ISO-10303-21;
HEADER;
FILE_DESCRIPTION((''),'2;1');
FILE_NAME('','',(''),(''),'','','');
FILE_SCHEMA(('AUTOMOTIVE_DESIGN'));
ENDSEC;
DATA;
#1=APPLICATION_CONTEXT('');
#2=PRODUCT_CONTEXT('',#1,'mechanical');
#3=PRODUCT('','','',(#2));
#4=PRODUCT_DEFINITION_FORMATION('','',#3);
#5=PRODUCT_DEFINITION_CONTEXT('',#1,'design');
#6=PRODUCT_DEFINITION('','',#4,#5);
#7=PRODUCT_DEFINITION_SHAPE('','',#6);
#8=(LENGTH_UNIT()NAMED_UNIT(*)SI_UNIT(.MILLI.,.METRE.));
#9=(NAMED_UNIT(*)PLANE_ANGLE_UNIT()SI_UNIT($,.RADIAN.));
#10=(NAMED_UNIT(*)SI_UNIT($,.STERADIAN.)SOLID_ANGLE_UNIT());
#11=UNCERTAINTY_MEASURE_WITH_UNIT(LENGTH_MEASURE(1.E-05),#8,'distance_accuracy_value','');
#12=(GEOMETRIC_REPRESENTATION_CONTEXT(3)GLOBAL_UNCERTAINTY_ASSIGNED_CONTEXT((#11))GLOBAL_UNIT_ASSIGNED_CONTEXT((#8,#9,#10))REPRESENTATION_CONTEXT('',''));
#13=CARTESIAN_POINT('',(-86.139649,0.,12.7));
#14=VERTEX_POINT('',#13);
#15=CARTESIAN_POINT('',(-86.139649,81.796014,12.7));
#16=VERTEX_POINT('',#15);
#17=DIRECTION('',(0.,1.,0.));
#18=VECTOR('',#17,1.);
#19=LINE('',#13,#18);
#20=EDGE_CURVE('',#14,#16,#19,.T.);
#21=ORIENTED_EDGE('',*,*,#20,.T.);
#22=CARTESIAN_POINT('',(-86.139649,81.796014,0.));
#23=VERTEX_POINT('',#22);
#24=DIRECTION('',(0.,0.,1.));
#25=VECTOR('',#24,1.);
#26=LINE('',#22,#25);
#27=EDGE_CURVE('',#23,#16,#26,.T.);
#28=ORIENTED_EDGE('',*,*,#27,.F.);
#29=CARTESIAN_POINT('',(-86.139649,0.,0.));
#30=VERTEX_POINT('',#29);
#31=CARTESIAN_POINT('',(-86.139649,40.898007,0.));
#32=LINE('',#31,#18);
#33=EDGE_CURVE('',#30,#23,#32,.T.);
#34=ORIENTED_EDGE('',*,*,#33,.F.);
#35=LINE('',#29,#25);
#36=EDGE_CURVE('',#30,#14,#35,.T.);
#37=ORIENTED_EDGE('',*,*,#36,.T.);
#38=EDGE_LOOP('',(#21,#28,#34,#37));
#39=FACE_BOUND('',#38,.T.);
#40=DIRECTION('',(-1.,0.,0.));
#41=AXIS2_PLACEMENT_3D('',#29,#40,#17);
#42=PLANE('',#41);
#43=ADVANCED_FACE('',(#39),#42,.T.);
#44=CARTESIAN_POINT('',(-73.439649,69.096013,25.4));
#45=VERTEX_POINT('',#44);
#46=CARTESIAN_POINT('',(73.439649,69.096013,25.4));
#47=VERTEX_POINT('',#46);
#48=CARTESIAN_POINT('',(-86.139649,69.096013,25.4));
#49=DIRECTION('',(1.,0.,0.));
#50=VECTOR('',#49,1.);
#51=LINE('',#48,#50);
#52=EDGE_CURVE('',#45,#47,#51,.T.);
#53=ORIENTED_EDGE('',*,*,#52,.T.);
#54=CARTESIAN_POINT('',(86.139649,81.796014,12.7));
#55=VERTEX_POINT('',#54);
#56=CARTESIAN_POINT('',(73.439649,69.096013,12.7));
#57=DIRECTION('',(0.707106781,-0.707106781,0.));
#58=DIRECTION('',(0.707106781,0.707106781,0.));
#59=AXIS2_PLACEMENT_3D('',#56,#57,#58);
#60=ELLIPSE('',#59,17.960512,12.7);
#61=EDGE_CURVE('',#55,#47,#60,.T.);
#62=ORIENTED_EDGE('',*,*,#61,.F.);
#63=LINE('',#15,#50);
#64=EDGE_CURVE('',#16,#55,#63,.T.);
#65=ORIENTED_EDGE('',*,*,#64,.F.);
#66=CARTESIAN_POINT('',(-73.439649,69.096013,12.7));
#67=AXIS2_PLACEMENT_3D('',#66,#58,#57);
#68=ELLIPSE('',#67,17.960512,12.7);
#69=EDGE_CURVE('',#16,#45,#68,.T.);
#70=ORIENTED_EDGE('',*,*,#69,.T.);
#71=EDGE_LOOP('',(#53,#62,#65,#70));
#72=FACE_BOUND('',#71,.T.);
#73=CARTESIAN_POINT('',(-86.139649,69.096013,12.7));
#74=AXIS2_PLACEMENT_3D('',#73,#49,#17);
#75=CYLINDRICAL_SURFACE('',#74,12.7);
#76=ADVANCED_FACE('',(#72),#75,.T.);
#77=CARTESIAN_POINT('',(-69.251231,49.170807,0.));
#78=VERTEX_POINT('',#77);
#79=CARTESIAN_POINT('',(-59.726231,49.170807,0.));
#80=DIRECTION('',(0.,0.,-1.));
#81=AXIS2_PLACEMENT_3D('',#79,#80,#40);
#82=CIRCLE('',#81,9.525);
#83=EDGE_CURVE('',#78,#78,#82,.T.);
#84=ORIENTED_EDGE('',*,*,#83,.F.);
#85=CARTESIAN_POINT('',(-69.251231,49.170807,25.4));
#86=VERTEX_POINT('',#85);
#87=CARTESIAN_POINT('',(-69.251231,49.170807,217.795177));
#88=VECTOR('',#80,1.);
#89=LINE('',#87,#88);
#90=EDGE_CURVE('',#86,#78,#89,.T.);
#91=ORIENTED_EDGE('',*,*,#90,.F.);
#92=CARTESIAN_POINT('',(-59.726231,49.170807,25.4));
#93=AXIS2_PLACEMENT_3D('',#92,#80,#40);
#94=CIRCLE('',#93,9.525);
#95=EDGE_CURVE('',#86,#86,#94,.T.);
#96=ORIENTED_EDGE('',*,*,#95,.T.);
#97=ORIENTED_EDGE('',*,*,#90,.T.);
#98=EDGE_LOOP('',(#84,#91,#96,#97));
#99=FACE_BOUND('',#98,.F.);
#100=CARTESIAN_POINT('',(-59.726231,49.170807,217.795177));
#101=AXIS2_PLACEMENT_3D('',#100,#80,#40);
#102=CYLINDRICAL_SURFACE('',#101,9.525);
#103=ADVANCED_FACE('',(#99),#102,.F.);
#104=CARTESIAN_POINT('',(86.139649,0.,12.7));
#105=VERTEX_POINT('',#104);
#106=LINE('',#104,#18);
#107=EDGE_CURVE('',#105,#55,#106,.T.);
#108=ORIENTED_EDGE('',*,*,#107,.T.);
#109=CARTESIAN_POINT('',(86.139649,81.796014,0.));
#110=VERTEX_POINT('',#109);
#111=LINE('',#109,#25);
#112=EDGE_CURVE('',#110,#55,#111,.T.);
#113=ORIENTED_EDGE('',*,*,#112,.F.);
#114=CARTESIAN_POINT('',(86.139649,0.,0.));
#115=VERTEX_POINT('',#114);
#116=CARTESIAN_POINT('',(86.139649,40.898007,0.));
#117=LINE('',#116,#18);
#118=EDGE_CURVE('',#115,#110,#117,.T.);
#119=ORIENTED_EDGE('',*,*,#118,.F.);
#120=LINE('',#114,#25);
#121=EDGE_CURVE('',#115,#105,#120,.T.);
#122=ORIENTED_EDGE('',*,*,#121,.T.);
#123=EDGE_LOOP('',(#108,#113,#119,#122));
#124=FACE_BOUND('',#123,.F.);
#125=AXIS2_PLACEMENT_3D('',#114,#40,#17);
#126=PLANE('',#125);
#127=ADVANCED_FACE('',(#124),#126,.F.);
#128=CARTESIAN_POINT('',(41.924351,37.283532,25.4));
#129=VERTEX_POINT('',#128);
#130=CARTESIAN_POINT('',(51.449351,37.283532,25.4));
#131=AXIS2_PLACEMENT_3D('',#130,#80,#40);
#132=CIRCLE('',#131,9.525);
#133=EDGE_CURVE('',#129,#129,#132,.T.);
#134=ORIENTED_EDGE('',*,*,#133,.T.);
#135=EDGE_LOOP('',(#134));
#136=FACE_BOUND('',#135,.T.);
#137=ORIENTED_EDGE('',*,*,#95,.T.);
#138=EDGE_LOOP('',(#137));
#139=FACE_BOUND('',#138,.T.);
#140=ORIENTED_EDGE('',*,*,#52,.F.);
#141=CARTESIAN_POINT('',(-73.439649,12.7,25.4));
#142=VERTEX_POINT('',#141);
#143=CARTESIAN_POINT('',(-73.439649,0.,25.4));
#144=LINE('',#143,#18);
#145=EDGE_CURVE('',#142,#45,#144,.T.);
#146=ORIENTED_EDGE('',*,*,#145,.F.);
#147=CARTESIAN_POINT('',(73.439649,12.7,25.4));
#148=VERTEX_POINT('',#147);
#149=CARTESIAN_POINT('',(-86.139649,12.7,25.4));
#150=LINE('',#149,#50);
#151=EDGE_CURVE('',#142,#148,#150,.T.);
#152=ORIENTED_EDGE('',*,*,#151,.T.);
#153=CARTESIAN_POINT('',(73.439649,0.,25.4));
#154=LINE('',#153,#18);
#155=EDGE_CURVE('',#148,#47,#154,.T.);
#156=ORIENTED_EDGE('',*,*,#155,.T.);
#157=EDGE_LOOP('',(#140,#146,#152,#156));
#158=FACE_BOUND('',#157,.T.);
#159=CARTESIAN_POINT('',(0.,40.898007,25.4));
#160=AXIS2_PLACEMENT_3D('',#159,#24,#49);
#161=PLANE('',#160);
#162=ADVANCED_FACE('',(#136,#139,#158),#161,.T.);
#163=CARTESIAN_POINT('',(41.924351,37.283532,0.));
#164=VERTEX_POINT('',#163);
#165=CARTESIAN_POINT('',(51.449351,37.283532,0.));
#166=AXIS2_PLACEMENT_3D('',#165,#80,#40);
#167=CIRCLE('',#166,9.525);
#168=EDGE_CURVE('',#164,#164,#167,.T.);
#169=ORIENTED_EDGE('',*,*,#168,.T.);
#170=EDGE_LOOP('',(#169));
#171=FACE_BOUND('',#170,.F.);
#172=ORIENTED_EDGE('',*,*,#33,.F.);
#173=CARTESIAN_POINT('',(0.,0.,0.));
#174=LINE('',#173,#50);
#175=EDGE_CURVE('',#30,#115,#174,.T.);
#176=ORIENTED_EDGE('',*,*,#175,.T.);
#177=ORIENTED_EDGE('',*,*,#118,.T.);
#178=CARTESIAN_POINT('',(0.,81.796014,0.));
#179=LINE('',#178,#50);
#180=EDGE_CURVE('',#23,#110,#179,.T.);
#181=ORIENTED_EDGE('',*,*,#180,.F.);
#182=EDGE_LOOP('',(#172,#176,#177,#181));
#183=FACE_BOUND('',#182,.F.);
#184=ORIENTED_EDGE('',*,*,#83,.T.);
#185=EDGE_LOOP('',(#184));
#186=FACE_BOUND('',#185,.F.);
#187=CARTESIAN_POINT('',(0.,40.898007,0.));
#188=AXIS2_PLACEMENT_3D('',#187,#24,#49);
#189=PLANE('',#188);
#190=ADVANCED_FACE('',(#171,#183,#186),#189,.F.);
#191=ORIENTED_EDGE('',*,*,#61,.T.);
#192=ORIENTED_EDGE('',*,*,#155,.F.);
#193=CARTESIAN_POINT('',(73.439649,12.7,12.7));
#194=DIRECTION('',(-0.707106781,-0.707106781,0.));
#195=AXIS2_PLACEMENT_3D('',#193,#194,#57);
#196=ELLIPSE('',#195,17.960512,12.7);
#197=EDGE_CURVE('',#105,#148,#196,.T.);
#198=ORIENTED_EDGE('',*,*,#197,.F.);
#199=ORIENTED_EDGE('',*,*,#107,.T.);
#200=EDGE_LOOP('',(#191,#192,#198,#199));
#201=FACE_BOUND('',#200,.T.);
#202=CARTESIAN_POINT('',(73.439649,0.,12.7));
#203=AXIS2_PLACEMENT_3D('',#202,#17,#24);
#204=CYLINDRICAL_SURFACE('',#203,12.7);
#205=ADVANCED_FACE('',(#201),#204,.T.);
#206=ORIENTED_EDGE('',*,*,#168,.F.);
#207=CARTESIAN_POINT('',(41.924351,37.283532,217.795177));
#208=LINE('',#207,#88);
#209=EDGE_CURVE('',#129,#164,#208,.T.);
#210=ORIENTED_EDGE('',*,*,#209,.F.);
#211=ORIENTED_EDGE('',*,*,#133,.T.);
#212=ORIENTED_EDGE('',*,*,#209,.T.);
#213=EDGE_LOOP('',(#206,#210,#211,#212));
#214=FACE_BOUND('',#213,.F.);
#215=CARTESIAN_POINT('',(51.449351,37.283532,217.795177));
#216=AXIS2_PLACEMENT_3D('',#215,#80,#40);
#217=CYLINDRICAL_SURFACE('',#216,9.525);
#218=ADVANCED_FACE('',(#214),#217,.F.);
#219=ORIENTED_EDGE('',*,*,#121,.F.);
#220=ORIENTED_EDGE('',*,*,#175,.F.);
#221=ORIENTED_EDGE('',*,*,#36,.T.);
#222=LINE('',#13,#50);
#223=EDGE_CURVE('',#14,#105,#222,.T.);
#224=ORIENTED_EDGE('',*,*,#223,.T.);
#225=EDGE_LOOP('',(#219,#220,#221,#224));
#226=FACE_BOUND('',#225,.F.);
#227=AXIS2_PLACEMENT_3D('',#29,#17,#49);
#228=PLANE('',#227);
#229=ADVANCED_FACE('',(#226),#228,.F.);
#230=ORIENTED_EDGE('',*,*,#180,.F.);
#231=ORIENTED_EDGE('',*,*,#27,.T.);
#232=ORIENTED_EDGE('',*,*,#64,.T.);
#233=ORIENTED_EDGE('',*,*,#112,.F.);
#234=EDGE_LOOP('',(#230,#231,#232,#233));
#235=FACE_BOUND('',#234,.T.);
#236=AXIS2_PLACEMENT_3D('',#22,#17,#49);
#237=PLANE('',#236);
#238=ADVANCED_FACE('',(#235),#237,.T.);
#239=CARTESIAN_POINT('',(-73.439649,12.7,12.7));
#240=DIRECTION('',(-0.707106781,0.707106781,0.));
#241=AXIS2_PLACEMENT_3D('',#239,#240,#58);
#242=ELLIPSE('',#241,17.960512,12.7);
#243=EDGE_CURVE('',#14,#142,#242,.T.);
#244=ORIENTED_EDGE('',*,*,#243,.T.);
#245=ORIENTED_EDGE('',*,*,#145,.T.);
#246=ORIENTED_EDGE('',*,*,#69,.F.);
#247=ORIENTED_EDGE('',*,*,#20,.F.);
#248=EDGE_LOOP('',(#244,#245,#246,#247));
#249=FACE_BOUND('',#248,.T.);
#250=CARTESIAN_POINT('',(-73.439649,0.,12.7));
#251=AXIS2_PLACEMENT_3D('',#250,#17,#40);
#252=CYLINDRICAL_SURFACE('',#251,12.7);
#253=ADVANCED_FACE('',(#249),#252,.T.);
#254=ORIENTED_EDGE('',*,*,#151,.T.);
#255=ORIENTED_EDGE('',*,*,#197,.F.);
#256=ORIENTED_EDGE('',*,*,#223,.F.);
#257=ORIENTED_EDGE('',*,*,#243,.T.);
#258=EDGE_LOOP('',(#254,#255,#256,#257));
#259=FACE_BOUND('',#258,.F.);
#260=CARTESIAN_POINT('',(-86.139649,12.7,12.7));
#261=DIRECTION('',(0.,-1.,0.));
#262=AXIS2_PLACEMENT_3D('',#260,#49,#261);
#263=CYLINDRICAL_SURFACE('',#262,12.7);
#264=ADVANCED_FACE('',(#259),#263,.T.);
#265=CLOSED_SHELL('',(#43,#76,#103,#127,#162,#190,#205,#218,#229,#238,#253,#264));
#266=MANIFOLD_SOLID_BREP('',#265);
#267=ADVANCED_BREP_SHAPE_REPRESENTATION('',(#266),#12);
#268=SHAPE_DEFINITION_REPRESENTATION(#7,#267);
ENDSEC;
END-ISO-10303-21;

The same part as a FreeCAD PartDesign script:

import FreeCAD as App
import Part
import Sketcher
from FreeCAD import Vector
Q = App.Units.Quantity


def edges_at(feature, points):
    """Names of the edges that pass closest to the given points."""
    edges = feature.Shape.Edges
    near = lambda p: min(range(len(edges)), key=lambda i: edges[i].distToShape(Part.Vertex(*p))[0])
    return sorted({f"Edge{near(p) + 1}" for p in points})

doc = App.newDocument("Part")
body = doc.addObject("PartDesign::Body", "Body")

sketch1 = body.newObject("Sketcher::SketchObject", "Sketch")
sketch1.AttachmentSupport = (doc.getObject("XY_Plane"), [""])
sketch1.MapMode = "FlatFace"
sketch1.addGeometry([
    Part.LineSegment(Vector(-86.139649, 81.796014, 0), Vector(-86.139649, 0, 0)),
    Part.LineSegment(Vector(-86.139649, 0, 0), Vector(86.139649, 0, 0)),
    Part.LineSegment(Vector(86.139649, 0, 0), Vector(86.139649, 81.796014, 0)),
    Part.LineSegment(Vector(86.139649, 81.796014, 0), Vector(-86.139649, 81.796014, 0)),
], False)
sketch1.addConstraint([
    Sketcher.Constraint("Coincident", 0, 2, 1, 1),
    Sketcher.Constraint("Coincident", 1, 2, 2, 1),
    Sketcher.Constraint("Coincident", 2, 2, 3, 1),
    Sketcher.Constraint("Coincident", 3, 2, 0, 1),
    Sketcher.Constraint("Vertical", 0),
    Sketcher.Constraint("Horizontal", 1),
    Sketcher.Constraint("Vertical", 2),
    Sketcher.Constraint("Horizontal", 3),
    Sketcher.Constraint("Symmetric", 0, 2, 1, 2, -1, 1),
    Sketcher.Constraint("DistanceX", 1, 1, 1, 2, 172.279298),
    Sketcher.Constraint("DistanceY", 0, 2, 0, 1, 81.796013),
])
pad1 = body.newObject("PartDesign::Pad", "Pad")
pad1.Profile = sketch1
pad1.Length = Q("1 in")

sketch2 = body.newObject("Sketcher::SketchObject", "Sketch001")
sketch2.AttachmentSupport = (doc.getObject("XY_Plane"), [""])
sketch2.MapMode = "FlatFace"
sketch2.AttachmentOffset = App.Placement(Vector(0, 0, 1 * 25.4), App.Rotation())
sketch2.addGeometry([
    Part.Circle(Vector(51.449351, 37.283532, 0), Vector(0, 0, 1), 9.525),
    Part.Circle(Vector(-59.726231, 49.170807, 0), Vector(0, 0, 1), 9.525),
], False)
sketch2.addConstraint([
    Sketcher.Constraint("Equal", 0, 1),
    Sketcher.Constraint("Diameter", 0, Q("0.75 in")),
    Sketcher.Constraint("DistanceX", -1, 1, 0, 3, 51.449351),
    Sketcher.Constraint("DistanceX", 1, 3, -1, 1, 59.726231),
    Sketcher.Constraint("DistanceY", -1, 1, 0, 3, 37.283532),
    Sketcher.Constraint("DistanceY", -1, 1, 1, 3, 49.170807),
])
doc.recompute()
hole = body.newObject("PartDesign::Hole", "Hole")
hole.Profile = sketch2
hole.ThreadType = "None"
hole.Diameter = Q("0.75 in")
hole.DepthType = "ThroughAll"
doc.recompute()

fillet = body.newObject("PartDesign::Fillet", "Fillet")
fillet.Base = (hole, edges_at(hole, [
    (0, 81.796, 25.4),
    (-86.14, 40.898, 25.4),
    (0, 0, 25.4),
    (86.14, 40.898, 25.4),
]))
fillet.Radius = Q("0.5 in")

doc.recompute()
